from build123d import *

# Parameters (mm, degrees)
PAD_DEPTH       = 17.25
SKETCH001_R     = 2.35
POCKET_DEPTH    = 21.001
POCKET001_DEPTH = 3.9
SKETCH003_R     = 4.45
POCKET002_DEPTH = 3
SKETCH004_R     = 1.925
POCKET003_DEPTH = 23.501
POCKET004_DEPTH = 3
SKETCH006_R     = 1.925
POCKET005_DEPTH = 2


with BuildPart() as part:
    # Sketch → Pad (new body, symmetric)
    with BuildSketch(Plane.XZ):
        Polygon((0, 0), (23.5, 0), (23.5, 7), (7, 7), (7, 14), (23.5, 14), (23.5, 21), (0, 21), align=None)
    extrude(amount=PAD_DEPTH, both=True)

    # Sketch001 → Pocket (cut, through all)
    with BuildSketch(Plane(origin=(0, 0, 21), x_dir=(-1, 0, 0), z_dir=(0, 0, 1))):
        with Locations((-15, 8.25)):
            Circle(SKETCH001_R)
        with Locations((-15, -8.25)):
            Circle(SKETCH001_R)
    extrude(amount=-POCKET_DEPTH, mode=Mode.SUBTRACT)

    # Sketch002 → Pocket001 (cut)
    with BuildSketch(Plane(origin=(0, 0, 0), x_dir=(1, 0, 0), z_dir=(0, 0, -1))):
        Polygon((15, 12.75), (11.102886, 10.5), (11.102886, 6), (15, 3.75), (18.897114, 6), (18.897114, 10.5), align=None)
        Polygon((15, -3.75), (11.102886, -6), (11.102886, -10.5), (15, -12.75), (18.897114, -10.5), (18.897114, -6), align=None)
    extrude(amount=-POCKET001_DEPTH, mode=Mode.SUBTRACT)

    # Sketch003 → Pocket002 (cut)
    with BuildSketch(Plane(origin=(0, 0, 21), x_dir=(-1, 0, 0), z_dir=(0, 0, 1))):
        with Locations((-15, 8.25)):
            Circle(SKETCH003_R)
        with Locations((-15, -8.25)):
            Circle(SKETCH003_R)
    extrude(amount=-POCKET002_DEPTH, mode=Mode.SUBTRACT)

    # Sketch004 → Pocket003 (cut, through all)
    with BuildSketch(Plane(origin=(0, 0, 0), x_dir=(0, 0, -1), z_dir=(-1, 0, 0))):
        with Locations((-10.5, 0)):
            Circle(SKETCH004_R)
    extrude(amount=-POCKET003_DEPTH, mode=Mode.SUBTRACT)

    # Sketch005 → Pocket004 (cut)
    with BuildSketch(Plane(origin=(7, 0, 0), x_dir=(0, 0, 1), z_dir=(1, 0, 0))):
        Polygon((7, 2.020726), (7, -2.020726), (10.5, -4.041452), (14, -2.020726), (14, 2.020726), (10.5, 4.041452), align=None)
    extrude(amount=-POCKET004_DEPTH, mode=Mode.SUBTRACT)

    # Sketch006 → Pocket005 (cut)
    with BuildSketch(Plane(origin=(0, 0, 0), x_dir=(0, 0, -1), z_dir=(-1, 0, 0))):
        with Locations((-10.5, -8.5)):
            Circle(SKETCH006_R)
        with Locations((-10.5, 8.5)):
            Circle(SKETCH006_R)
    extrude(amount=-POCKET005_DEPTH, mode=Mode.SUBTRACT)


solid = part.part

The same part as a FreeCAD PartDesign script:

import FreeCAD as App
import Part
import Sketcher
from FreeCAD import Vector
Q = App.Units.Quantity

doc = App.newDocument("Part")
body = doc.addObject("PartDesign::Body", "Body")

# Sketch on XZ plane
sketch1 = doc.addObject("Sketcher::SketchObject", "Sketch")
body.addObject(sketch1)
sketch1.AttachmentSupport = (doc.XZ_Plane, [""])
sketch1.MapMode = "FlatFace"
sketch1.addGeometry([
    Part.LineSegment(Vector(0, 0, 0), Vector(24, 0, 0)),  # 0
    Part.LineSegment(Vector(24, 0, 0), Vector(24, 7, 0)),  # 1
    Part.LineSegment(Vector(24, 7, 0), Vector(7, 7, 0)),  # 2
    Part.LineSegment(Vector(7, 7, 0), Vector(7, 14, 0)),  # 3
    Part.LineSegment(Vector(7, 14, 0), Vector(24, 14, 0)),  # 4
    Part.LineSegment(Vector(24, 14, 0), Vector(24, 21, 0)),  # 5
    Part.LineSegment(Vector(24, 21, 0), Vector(0, 21, 0)),  # 6
    Part.LineSegment(Vector(0, 21, 0), Vector(0, 0, 0)),  # 7
], False)
sketch1.addConstraint([
    Sketcher.Constraint("Coincident", 0, 2, 1, 1),
    Sketcher.Constraint("Coincident", 1, 2, 2, 1),
    Sketcher.Constraint("Coincident", 2, 2, 3, 1),
    Sketcher.Constraint("Coincident", 3, 2, 4, 1),
    Sketcher.Constraint("Coincident", 4, 2, 5, 1),
    Sketcher.Constraint("Coincident", 5, 2, 6, 1),
    Sketcher.Constraint("Coincident", 6, 2, 7, 1),
    Sketcher.Constraint("Coincident", 7, 2, 0, 1),
    Sketcher.Constraint("Horizontal", 0),
    Sketcher.Constraint("Vertical", 1),
    Sketcher.Constraint("Horizontal", 2),
    Sketcher.Constraint("Vertical", 3),
    Sketcher.Constraint("Horizontal", 4),
    Sketcher.Constraint("Vertical", 5),
    Sketcher.Constraint("Horizontal", 6),
    Sketcher.Constraint("Vertical", 7),
    Sketcher.Constraint("Coincident", 7, 2, -1, 1),
    Sketcher.Constraint("Vertical", 1, 2, 4, 2),
    Sketcher.Constraint("Equal", 1, 3),
    Sketcher.Constraint("Equal", 3, 5),
    Sketcher.Constraint("DistanceY", 1, 1, 1, 2, Q("7 mm")),
    Sketcher.Constraint("DistanceX", 0, 1, 0, 2, Q("23.5 mm")),
    Sketcher.Constraint("DistanceX", 2, 2, 2, 1, Q("16.5 mm")),
])
pad1 = doc.addObject("PartDesign::Pad", "Pad")
body.addObject(pad1)
pad1.Profile = sketch1
pad1.Length = 34.5
pad1.Midplane = True

# Sketch on XY plane
sketch2 = doc.addObject("Sketcher::SketchObject", "Sketch001")
body.addObject(sketch2)
sketch2.AttachmentSupport = (doc.XY_Plane, [""])
sketch2.MapMode = "FlatFace"
sketch2.AttachmentOffset = App.Placement(Vector(0, 0, 21), App.Rotation())
sketch2.addGeometry([
    Part.Circle(Vector(15, -8.2, 0), Vector(0, 0, 1), 2.4),
    Part.Circle(Vector(15, 8.2, 0), Vector(0, 0, 1), 2.4),
], False)
sketch2.addConstraint([
    Sketcher.Constraint("Equal", 0, 1),
    Sketcher.Constraint("Symmetric", 0, 3, 1, 3, -1),
    Sketcher.Constraint("Diameter", 0, Q("4.7 mm")),
    Sketcher.Constraint("DistanceX", -1, 1, 0, 3, Q("15 mm")),
    Sketcher.Constraint("DistanceY", 0, 3, 1, 3, Q("16.5 mm")),
])
pocket1 = doc.addObject("PartDesign::Pocket", "Pocket")
body.addObject(pocket1)
pocket1.Profile = sketch2
pocket1.Type = "ThroughAll"

# Sketch on XY plane
sketch3 = doc.addObject("Sketcher::SketchObject", "Sketch002")
body.addObject(sketch3)
sketch3.AttachmentSupport = (doc.XY_Plane, [""])
sketch3.MapMode = "FlatFace"
sketch3.addGeometry([
    Part.LineSegment(Vector(15, -12.8, 0), Vector(11.1, -10.5, 0)),  # 0
    Part.LineSegment(Vector(11.1, -10.5, 0), Vector(11.1, -6, 0)),  # 1
    Part.LineSegment(Vector(11.1, -6, 0), Vector(15, -3.8, 0)),  # 2
    Part.LineSegment(Vector(15, -3.8, 0), Vector(18.9, -6, 0)),  # 3
    Part.LineSegment(Vector(18.9, -6, 0), Vector(18.9, -10.5, 0)),  # 4
    Part.LineSegment(Vector(18.9, -10.5, 0), Vector(15, -12.8, 0)),  # 5
    Part.LineSegment(Vector(15, 3.8, 0), Vector(11.1, 6, 0)),  # 6
    Part.LineSegment(Vector(11.1, 6, 0), Vector(11.1, 10.5, 0)),  # 7
    Part.LineSegment(Vector(11.1, 10.5, 0), Vector(15, 12.8, 0)),  # 8
    Part.LineSegment(Vector(15, 12.8, 0), Vector(18.9, 10.5, 0)),  # 9
    Part.LineSegment(Vector(18.9, 10.5, 0), Vector(18.9, 6, 0)),  # 10
    Part.LineSegment(Vector(18.9, 6, 0), Vector(15, 3.8, 0)),  # 11
], False)
sketch3.addConstraint([
    Sketcher.Constraint("Coincident", 0, 2, 1, 1),
    Sketcher.Constraint("Coincident", 1, 2, 2, 1),
    Sketcher.Constraint("Coincident", 2, 2, 3, 1),
    Sketcher.Constraint("Coincident", 3, 2, 4, 1),
    Sketcher.Constraint("Coincident", 4, 2, 5, 1),
    Sketcher.Constraint("Coincident", 5, 2, 0, 1),
    Sketcher.Constraint("Coincident", 6, 2, 7, 1),
    Sketcher.Constraint("Coincident", 7, 2, 8, 1),
    Sketcher.Constraint("Coincident", 8, 2, 9, 1),
    Sketcher.Constraint("Coincident", 9, 2, 10, 1),
    Sketcher.Constraint("Coincident", 10, 2, 11, 1),
    Sketcher.Constraint("Coincident", 11, 2, 6, 1),
    Sketcher.Constraint("Vertical", 1),
    Sketcher.Constraint("Vertical", 4),
    Sketcher.Constraint("Vertical", 7),
    Sketcher.Constraint("Vertical", 10),
    Sketcher.Constraint("Symmetric", 1, 2, 6, 2, -1),
    Sketcher.Constraint("Symmetric", 5, 2, 8, 2, -1),
    Sketcher.Constraint("Symmetric", 4, 2, 9, 2, -1),
    Sketcher.Constraint("Symmetric", 2, 2, 11, 2, -1),
    Sketcher.Constraint("Parallel", 0, 3),
    Sketcher.Constraint("Parallel", 2, 5),
    Sketcher.Constraint("Parallel", 3, 6),
    Sketcher.Constraint("Parallel", 5, 8),
    Sketcher.Constraint("Parallel", 8, 11),
    Sketcher.Constraint("Horizontal", 1, 2, 3, 2),
    Sketcher.Constraint("Horizontal", 0, 2, 4, 2),
    Sketcher.Constraint("Angle", 0, Q("149.999998 deg")),
    Sketcher.Constraint("DistanceY", 1, 1, 1, 2, Q("4.5 mm")),
    Sketcher.Constraint("DistanceY", 1, 2, -1, 1, Q("6 mm")),
    Sketcher.Constraint("DistanceX", -1, 1, 2, 2, Q("15 mm")),
    Sketcher.Constraint("DistanceY", 5, 2, 2, 2, Q("9 mm")),
])
pocket2 = doc.addObject("PartDesign::Pocket", "Pocket001")
body.addObject(pocket2)
pocket2.Profile = sketch3
pocket2.Length = 3.9
pocket2.Reversed = True

# Sketch on XY plane
sketch4 = doc.addObject("Sketcher::SketchObject", "Sketch003")
body.addObject(sketch4)
sketch4.AttachmentSupport = (doc.XY_Plane, [""])
sketch4.MapMode = "FlatFace"
sketch4.AttachmentOffset = App.Placement(Vector(0, 0, 21), App.Rotation())
sketch4.addGeometry([
    Part.Circle(Vector(15, -8.2, 0), Vector(0, 0, 1), 4.5),
    Part.Circle(Vector(15, 8.2, 0), Vector(0, 0, 1), 4.5),
], False)
sketch4.addConstraint([
    Sketcher.Constraint("Equal", 0, 1),
    Sketcher.Constraint("Symmetric", 0, 3, 1, 3, -1),
    Sketcher.Constraint("Diameter", 0, Q("8.9 mm")),
    Sketcher.Constraint("DistanceX", -1, 1, 0, 3, Q("15 mm")),
    Sketcher.Constraint("DistanceY", 0, 3, 1, 3, Q("16.5 mm")),
])
pocket3 = doc.addObject("PartDesign::Pocket", "Pocket002")
body.addObject(pocket3)
pocket3.Profile = sketch4
pocket3.Length = 3

# Sketch on YZ plane
sketch5 = doc.addObject("Sketcher::SketchObject", "Sketch004")
body.addObject(sketch5)
sketch5.AttachmentSupport = (doc.YZ_Plane, [""])
sketch5.MapMode = "FlatFace"
sketch5.addGeometry(Part.Circle(Vector(0, 10.5, 0), Vector(0, 0, 1), 1.9), False)
sketch5.addConstraint([
    Sketcher.Constraint("PointOnObject", 0, 3, -2),
    Sketcher.Constraint("Diameter", 0, Q("3.85 mm")),
    Sketcher.Constraint("DistanceY", -1, 1, 0, 3, Q("10.5 mm")),
])
pocket4 = doc.addObject("PartDesign::Pocket", "Pocket003")
body.addObject(pocket4)
pocket4.Profile = sketch5
pocket4.Type = "ThroughAll"
pocket4.Reversed = True

# Sketch on YZ plane
sketch6 = doc.addObject("Sketcher::SketchObject", "Sketch005")
body.addObject(sketch6)
sketch6.AttachmentSupport = (doc.YZ_Plane, [""])
sketch6.MapMode = "FlatFace"
sketch6.AttachmentOffset = App.Placement(Vector(0, 0, 7), App.Rotation())
sketch6.addGeometry([
    Part.LineSegment(Vector(-2, 7, 0), Vector(2, 7, 0)),  # 0
    Part.LineSegment(Vector(2, 7, 0), Vector(4, 10.5, 0)),  # 1
    Part.LineSegment(Vector(4, 10.5, 0), Vector(2, 14, 0)),  # 2
    Part.LineSegment(Vector(2, 14, 0), Vector(-2, 14, 0)),  # 3
    Part.LineSegment(Vector(-2, 14, 0), Vector(-4, 10.5, 0)),  # 4
    Part.LineSegment(Vector(-4, 10.5, 0), Vector(-2, 7, 0)),  # 5
], False)
sketch6.addConstraint([
    Sketcher.Constraint("Coincident", 0, 2, 1, 1),
    Sketcher.Constraint("Coincident", 1, 2, 2, 1),
    Sketcher.Constraint("Coincident", 2, 2, 3, 1),
    Sketcher.Constraint("Coincident", 3, 2, 4, 1),
    Sketcher.Constraint("Coincident", 4, 2, 5, 1),
    Sketcher.Constraint("Coincident", 5, 2, 0, 1),
    Sketcher.Constraint("Horizontal", 0),
    Sketcher.Constraint("Horizontal", 3),
    Sketcher.Constraint("Symmetric", 1, 2, 4, 2, -2),
    Sketcher.Constraint("Parallel", 1, 4),
    Sketcher.Constraint("Parallel", 2, 5),
    Sketcher.Constraint("Vertical", 0, 2, 2, 2),
    Sketcher.Constraint("Vertical", 3, 2, 5, 2),
    Sketcher.Constraint("Angle", 1, Q("59.999999 deg")),
    Sketcher.Constraint("DistanceY", -1, 1, 0, 2, Q("7 mm")),
    Sketcher.Constraint("DistanceY", -1, 1, 2, 2, Q("14 mm")),
    Sketcher.Constraint("DistanceX", 0, 1, 0, 2, Q("4.041452 mm")),
])
pocket5 = doc.addObject("PartDesign::Pocket", "Pocket004")
body.addObject(pocket5)
pocket5.Profile = sketch6
pocket5.Length = 3

# Sketch on YZ plane
sketch7 = doc.addObject("Sketcher::SketchObject", "Sketch006")
body.addObject(sketch7)
sketch7.AttachmentSupport = (doc.YZ_Plane, [""])
sketch7.MapMode = "FlatFace"
sketch7.addGeometry([
    Part.Circle(Vector(8.5, 10.5, 0), Vector(0, 0, 1), 1.9),
    Part.Circle(Vector(-8.5, 10.5, 0), Vector(0, 0, 1), 1.9),
], False)
sketch7.addConstraint([
    Sketcher.Constraint("Equal", 0, 1),
    Sketcher.Constraint("Symmetric", 0, 3, 1, 3, -2),
    Sketcher.Constraint("Diameter", 0, Q("3.85 mm")),
    Sketcher.Constraint("DistanceX", 1, 3, 0, 3, Q("17 mm")),
    Sketcher.Constraint("DistanceY", -1, 1, 0, 3, Q("10.5 mm")),
])
pocket6 = doc.addObject("PartDesign::Pocket", "Pocket005")
body.addObject(pocket6)
pocket6.Profile = sketch7
pocket6.Length = 2
pocket6.Reversed = True

doc.recompute()
